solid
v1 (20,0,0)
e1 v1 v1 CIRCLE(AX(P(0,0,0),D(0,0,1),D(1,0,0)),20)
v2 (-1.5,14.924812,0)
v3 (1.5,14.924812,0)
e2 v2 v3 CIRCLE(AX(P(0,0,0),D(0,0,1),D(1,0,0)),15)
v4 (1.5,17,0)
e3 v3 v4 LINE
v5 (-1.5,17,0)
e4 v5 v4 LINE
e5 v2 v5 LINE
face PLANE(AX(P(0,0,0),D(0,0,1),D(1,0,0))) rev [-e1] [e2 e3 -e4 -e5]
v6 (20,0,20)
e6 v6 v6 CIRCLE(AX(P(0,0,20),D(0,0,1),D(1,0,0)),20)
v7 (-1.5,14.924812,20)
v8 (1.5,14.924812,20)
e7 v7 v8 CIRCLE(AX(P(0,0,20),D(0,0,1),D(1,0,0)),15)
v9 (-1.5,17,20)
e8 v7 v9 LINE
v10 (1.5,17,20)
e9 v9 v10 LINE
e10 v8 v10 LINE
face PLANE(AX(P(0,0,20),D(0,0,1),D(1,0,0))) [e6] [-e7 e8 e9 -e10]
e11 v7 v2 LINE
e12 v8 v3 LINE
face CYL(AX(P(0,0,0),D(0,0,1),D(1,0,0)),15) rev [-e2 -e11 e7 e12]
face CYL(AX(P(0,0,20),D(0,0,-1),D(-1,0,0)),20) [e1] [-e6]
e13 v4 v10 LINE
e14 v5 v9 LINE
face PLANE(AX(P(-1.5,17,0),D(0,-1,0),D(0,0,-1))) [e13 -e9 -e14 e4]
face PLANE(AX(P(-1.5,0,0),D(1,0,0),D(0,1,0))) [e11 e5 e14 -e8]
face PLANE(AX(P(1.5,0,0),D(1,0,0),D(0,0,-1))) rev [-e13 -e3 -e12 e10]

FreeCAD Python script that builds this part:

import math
import FreeCAD as App
import Part
import Sketcher

V = App.Vector
Q = App.Units.Quantity

doc = App.newDocument("Part")
body = doc.addObject("PartDesign::Body", "Body")

sketch1 = body.newObject("Sketcher::SketchObject", "Sketch")
sketch1.AttachmentSupport = (doc.getObject("XY_Plane"), [""])
sketch1.MapMode = "FlatFace"
sketch1.addGeometry(Part.Circle(V(0, 0, 0), V(0, 0, 1), 20), False)
sketch1.addConstraint(Sketcher.Constraint("Coincident", 0, 3, -1, 1))
sketch1.addConstraint(Sketcher.Constraint("Diameter", 0, Q("40 mm")))
pad1 = body.newObject("PartDesign::Pad", "Pad")
pad1.Profile = sketch1
pad1.Length = 20

sketch2 = body.newObject("Sketcher::SketchObject", "Sketch001")
sketch2.AttachmentSupport = (doc.getObject("XY_Plane"), [""])
sketch2.MapMode = "FlatFace"
sketch2.AttachmentOffset = App.Placement(V(0, 0, 20), App.Rotation())
sketch2.addGeometry(Part.ArcOfCircle(Part.Circle(V(0, 0, 0), V(0, 0, 1), 15), math.radians(96), math.radians(444)), False)
sketch2.addGeometry(Part.LineSegment(V(1.5, 14.9, 0), V(1.5, 17, 0)), False)
sketch2.addGeometry(Part.LineSegment(V(1.5, 17, 0), V(-1.5, 17, 0)), False)
sketch2.addGeometry(Part.LineSegment(V(-1.5, 17, 0), V(-1.5, 14.9, 0)), False)
sketch2.addConstraint(Sketcher.Constraint("Coincident", 0, 2, 1, 1))
sketch2.addConstraint(Sketcher.Constraint("Coincident", 1, 2, 2, 1))
sketch2.addConstraint(Sketcher.Constraint("Coincident", 2, 2, 3, 1))
sketch2.addConstraint(Sketcher.Constraint("Coincident", 3, 2, 0, 1))
sketch2.addConstraint(Sketcher.Constraint("Vertical", 1))
sketch2.addConstraint(Sketcher.Constraint("Horizontal", 2))
sketch2.addConstraint(Sketcher.Constraint("Vertical", 3))
sketch2.addConstraint(Sketcher.Constraint("Coincident", 0, 3, -1, 1))
sketch2.addConstraint(Sketcher.Constraint("Horizontal", 0, 2, 3, 2))
sketch2.addConstraint(Sketcher.Constraint("Radius", 0, Q("15 mm")))
sketch2.addConstraint(Sketcher.Constraint("DistanceX", 2, 2, 2, 1, Q("3 mm")))
sketch2.addConstraint(Sketcher.Constraint("DistanceY", -1, 1, 1, 2, Q("17 mm")))
pocket1 = body.newObject("PartDesign::Pocket", "Pocket")
pocket1.Profile = sketch2
pocket1.Type = "ThroughAll"

doc.recompute()
